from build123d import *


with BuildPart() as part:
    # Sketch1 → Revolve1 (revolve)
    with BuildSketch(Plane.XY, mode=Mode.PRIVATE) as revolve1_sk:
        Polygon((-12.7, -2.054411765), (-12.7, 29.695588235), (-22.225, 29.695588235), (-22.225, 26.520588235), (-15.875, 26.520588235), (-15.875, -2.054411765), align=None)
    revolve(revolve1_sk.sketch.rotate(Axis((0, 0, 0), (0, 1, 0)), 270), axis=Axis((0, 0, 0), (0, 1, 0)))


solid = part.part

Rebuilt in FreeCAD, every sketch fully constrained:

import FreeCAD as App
import Part
import Sketcher
from FreeCAD import Vector
Q = App.Units.Quantity

doc = App.newDocument("Part")
body = doc.addObject("PartDesign::Body", "Body")

sketch1 = body.newObject("Sketcher::SketchObject", "Sketch")
sketch1.AttachmentSupport = (doc.getObject("XY_Plane"), [""])
sketch1.MapMode = "FlatFace"
sketch1.addGeometry(Part.LineSegment(Vector(-12.7, -2.1, 0), Vector(-12.7, 29.7, 0)), False)
sketch1.addGeometry(Part.LineSegment(Vector(-12.7, 29.7, 0), Vector(-22.2, 29.7, 0)), False)
sketch1.addGeometry(Part.LineSegment(Vector(-22.2, 29.7, 0), Vector(-22.2, 26.5, 0)), False)
sketch1.addGeometry(Part.LineSegment(Vector(-22.2, 26.5, 0), Vector(-15.9, 26.5, 0)), False)
sketch1.addGeometry(Part.LineSegment(Vector(-15.9, 26.5, 0), Vector(-15.9, -2.1, 0)), False)
sketch1.addGeometry(Part.LineSegment(Vector(-15.9, -2.1, 0), Vector(-12.7, -2.1, 0)), False)
sketch1.addConstraint(Sketcher.Constraint("Coincident", 0, 2, 1, 1))
sketch1.addConstraint(Sketcher.Constraint("Coincident", 1, 2, 2, 1))
sketch1.addConstraint(Sketcher.Constraint("Coincident", 2, 2, 3, 1))
sketch1.addConstraint(Sketcher.Constraint("Coincident", 3, 2, 4, 1))
sketch1.addConstraint(Sketcher.Constraint("Coincident", 4, 2, 5, 1))
sketch1.addConstraint(Sketcher.Constraint("Coincident", 5, 2, 0, 1))
sketch1.addConstraint(Sketcher.Constraint("Vertical", 0))
sketch1.addConstraint(Sketcher.Constraint("Horizontal", 1))
sketch1.addConstraint(Sketcher.Constraint("Vertical", 2))
sketch1.addConstraint(Sketcher.Constraint("Horizontal", 3))
sketch1.addConstraint(Sketcher.Constraint("Vertical", 4))
sketch1.addConstraint(Sketcher.Constraint("Horizontal", 5))
sketch1.addConstraint(Sketcher.Constraint("Equal", 5, 2))
sketch1.addConstraint(Sketcher.Constraint("DistanceX", 3, 1, 3, 2, Q("0.25 in")))
sketch1.addConstraint(Sketcher.Constraint("DistanceY", 0, 1, 0, 2, Q("1.25 in")))
sketch1.addConstraint(Sketcher.Constraint("DistanceX", 0, 2, -1, 1, Q("0.5 in")))
sketch1.addConstraint(Sketcher.Constraint("DistanceX", 1, 2, 1, 1, Q("0.375 in")))
sketch1.addConstraint(Sketcher.Constraint("DistanceY", -1, 1, 0, 2, 29.695588))
revolution = body.newObject("PartDesign::Revolution", "Revolution")
revolution.Profile = sketch1
revolution.ReferenceAxis = (sketch1, ["V_Axis"])
revolution.Angle = 360

doc.recompute()
